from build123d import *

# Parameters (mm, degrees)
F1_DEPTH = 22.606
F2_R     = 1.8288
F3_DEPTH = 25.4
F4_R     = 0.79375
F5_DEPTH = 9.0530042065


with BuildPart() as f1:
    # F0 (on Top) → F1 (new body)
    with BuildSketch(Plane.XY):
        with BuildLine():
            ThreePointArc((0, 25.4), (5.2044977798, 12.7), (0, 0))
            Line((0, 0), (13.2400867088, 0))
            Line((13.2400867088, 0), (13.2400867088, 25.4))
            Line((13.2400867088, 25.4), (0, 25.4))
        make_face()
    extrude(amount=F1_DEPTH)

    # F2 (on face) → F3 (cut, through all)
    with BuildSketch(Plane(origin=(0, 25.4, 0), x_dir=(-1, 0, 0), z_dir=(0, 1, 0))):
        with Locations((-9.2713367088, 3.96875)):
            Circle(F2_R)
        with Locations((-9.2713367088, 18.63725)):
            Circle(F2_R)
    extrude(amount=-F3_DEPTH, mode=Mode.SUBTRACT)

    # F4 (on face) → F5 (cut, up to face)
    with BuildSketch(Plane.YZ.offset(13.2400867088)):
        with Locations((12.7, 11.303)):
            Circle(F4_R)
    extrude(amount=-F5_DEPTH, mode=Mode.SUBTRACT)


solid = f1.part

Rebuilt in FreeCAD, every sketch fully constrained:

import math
import FreeCAD as App
import Part
import Sketcher
from FreeCAD import Vector
Q = App.Units.Quantity

doc = App.newDocument("Part")
body = doc.addObject("PartDesign::Body", "Body")

# Sketch on XY plane
sketch1 = body.newObject("Sketcher::SketchObject", "Sketch")
sketch1.AttachmentSupport = (doc.getObject("XY_Plane"), [""])
sketch1.MapMode = "FlatFace"
sketch1.addGeometry([
    Part.ArcOfCircle(Part.Circle(Vector(-13, 13, 0), Vector(0, 0, 1), 18), math.radians(-45), math.radians(45)),
    Part.LineSegment(Vector(0, 0, 0), Vector(13, 0, 0)),
    Part.LineSegment(Vector(13, 0, 0), Vector(13, 25, 0)),
    Part.LineSegment(Vector(13, 25, 0), Vector(0, 25, 0)),
], False)
sketch1.addConstraint([
    Sketcher.Constraint("Coincident", 0, 1, 1, 1),
    Sketcher.Constraint("Coincident", 1, 2, 2, 1),
    Sketcher.Constraint("Coincident", 2, 2, 3, 1),
    Sketcher.Constraint("Coincident", 3, 2, 0, 2),
    Sketcher.Constraint("Horizontal", 1),
    Sketcher.Constraint("Vertical", 2),
    Sketcher.Constraint("Horizontal", 3),
    Sketcher.Constraint("Coincident", 0, 1, -1, 1),
    Sketcher.Constraint("PointOnObject", 3, 2, -2),
    Sketcher.Constraint("DistanceY", 2, 1, 2, 2, Q("1 in")),
    Sketcher.Constraint("Radius", 0, Q("0.7125 in")),
    Sketcher.Constraint("DistanceX", 1, 1, 1, 2, Q("13.240087 mm")),
])
pad1 = body.newObject("PartDesign::Pad", "Pad")
pad1.Profile = sketch1
pad1.Length = Q("0.89 in")

# Sketch on XZ plane
sketch2 = body.newObject("Sketcher::SketchObject", "Sketch001")
sketch2.AttachmentSupport = (doc.getObject("XZ_Plane"), [""])
sketch2.MapMode = "FlatFace"
sketch2.AttachmentOffset = App.Placement(Vector(0, 0, -1 * 25.4), App.Rotation())
sketch2.addGeometry([
    Part.Circle(Vector(9.3, 4, 0), Vector(0, 0, 1), 1.8),
    Part.Circle(Vector(9.3, 18.6, 0), Vector(0, 0, 1), 1.8),
], False)
sketch2.addConstraint([
    Sketcher.Constraint("Equal", 0, 1),
    Sketcher.Constraint("Vertical", 0, 3, 1, 3),
    Sketcher.Constraint("Diameter", 0, Q("0.144 in")),
    Sketcher.Constraint("DistanceY", -1, 1, 0, 3, Q("0.15625 in")),
    Sketcher.Constraint("DistanceY", 0, 3, 1, 3, Q("0.5775 in")),
    Sketcher.Constraint("DistanceX", -1, 1, 0, 3, Q("9.271337 mm")),
])
pocket1 = body.newObject("PartDesign::Pocket", "Pocket")
pocket1.Profile = sketch2
pocket1.Type = "ThroughAll"
pocket1.Reversed = True

# Sketch on YZ plane
sketch3 = body.newObject("Sketcher::SketchObject", "Sketch002")
sketch3.AttachmentSupport = (doc.getObject("YZ_Plane"), [""])
sketch3.MapMode = "FlatFace"
sketch3.AttachmentOffset = App.Placement(Vector(0, 0, 13.240087), App.Rotation())
sketch3.addGeometry(Part.Circle(Vector(12.7, 11.3, 0), Vector(0, 0, 1), 0.8), False)
sketch3.addConstraint([
    Sketcher.Constraint("Diameter", 0, Q("0.0625 in")),
    Sketcher.Constraint("DistanceX", -1, 1, 0, 3, Q("0.5 in")),
    Sketcher.Constraint("DistanceY", -1, 1, 0, 3, Q("0.445 in")),
])
pocket2 = body.newObject("PartDesign::Pocket", "Pocket001")
pocket2.Profile = sketch3
pocket2.Length = 9.053004

doc.recompute()
